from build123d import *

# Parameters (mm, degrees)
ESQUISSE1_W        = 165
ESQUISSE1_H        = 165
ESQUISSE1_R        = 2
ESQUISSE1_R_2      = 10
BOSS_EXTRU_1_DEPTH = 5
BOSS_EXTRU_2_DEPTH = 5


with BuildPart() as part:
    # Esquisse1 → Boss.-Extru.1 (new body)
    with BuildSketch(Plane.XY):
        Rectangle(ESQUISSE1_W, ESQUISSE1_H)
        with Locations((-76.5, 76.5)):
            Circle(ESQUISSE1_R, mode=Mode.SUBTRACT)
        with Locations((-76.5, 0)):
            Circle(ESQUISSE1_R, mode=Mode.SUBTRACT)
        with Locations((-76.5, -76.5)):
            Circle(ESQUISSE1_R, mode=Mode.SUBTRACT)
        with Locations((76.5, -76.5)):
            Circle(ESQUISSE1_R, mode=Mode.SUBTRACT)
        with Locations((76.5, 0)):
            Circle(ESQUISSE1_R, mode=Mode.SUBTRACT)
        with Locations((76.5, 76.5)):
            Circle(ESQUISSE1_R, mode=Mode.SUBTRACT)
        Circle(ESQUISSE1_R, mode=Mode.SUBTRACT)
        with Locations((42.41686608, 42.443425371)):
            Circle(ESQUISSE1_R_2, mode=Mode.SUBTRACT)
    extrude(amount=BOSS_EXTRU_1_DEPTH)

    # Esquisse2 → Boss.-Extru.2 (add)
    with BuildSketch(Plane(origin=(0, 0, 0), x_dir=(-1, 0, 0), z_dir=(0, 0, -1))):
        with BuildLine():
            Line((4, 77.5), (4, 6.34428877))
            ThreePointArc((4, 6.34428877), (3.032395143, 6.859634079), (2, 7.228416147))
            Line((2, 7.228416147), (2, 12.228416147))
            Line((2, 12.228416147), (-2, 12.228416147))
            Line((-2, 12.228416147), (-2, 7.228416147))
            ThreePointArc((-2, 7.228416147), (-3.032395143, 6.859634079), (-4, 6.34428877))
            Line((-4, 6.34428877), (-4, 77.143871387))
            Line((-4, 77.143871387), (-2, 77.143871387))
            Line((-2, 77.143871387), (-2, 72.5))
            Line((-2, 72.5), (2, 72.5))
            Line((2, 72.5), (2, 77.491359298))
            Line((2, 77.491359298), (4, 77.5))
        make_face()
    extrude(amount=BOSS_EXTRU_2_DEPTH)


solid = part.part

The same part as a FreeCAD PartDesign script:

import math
import FreeCAD as App
import Part
import Sketcher

V = App.Vector
Q = App.Units.Quantity


def add_polygon(sketch, points):
    """Adds a closed chain of lines whose ends are joined by coincident constraints."""
    first, n = sketch.GeometryCount, len(points)
    for a, b in zip(points, points[1:] + points[:1]):
        sketch.addGeometry(Part.LineSegment(App.Vector(*a, 0), App.Vector(*b, 0)), False)
    for i in range(n):
        sketch.addConstraint(Sketcher.Constraint("Coincident", first + i, 2, first + (i + 1) % n, 1))

doc = App.newDocument("Part")
params = doc.addObject("Spreadsheet::Sheet", "Params")
for row, (alias, value) in enumerate([
    ("sketch1_diameter", "4 mm"),
    ("sketch1_diameter2", "20 mm"),
    ("sketch1_width", "165 mm"),
    ("pad1_length", "5 mm"),
    ("sketch2_radius", "7.5 mm"),
    ("sketch2_width", "4 mm"),
    ("sketch2_width2", "2 mm"),
    ("sketch2_height", "5 mm"),
    ("pad2_length", "5 mm"),
], start=1):
    params.set(f"A{row}", alias)
    params.set(f"B{row}", "=" + value)
    params.setAlias(f"B{row}", alias)

body = doc.addObject("PartDesign::Body", "Body")

# Sketch on XY plane
sketch1 = body.newObject("Sketcher::SketchObject", "Sketch")
sketch1.AttachmentSupport = (doc.getObject("XY_Plane"), [""])
sketch1.MapMode = "FlatFace"
add_polygon(sketch1, [(-82.5, 82.5), (-82.5, -82.5), (82.5, -82.5), (82.5, 82.5)])  # lines 0-3
sketch1.addGeometry(Part.Circle(V(-76.5, -76.5, 0), V(0, 0, 1), 2), False)  # 4
sketch1.addGeometry(Part.Circle(V(76.5, -76.5, 0), V(0, 0, 1), 2), False)  # 5
sketch1.addGeometry(Part.Circle(V(-76.5, 0, 0), V(0, 0, 1), 2), False)  # 6
sketch1.addGeometry(Part.Circle(V(-76.5, 76.5, 0), V(0, 0, 1), 2), False)  # 7
sketch1.addGeometry(Part.Circle(V(0, 0, 0), V(0, 0, 1), 2), False)  # 8
sketch1.addGeometry(Part.Circle(V(76.5, 0, 0), V(0, 0, 1), 2), False)  # 9
sketch1.addGeometry(Part.Circle(V(42.4, 42.4, 0), V(0, 0, 1), 10), False)  # 10
sketch1.addGeometry(Part.Circle(V(76.5, 76.5, 0), V(0, 0, 1), 2), False)  # 11
sketch1.addConstraint([
    Sketcher.Constraint("Vertical", 0),
    Sketcher.Constraint("Horizontal", 1),
    Sketcher.Constraint("Vertical", 2),
    Sketcher.Constraint("Horizontal", 3),
    Sketcher.Constraint("Coincident", 8, 3, -1, 1),
    Sketcher.Constraint("Equal", 4, 5),
    Sketcher.Constraint("Equal", 5, 6),
    Sketcher.Constraint("Equal", 6, 7),
    Sketcher.Constraint("Equal", 7, 8),
    Sketcher.Constraint("Equal", 8, 9),
    Sketcher.Constraint("Equal", 9, 11),
    Sketcher.Constraint("Symmetric", 5, 3, 7, 3, -1, 1),
    Sketcher.Constraint("Symmetric", 6, 3, 9, 3, -1, 1),
    Sketcher.Constraint("Symmetric", 4, 3, 11, 3, -1, 1),
    Sketcher.Constraint("Symmetric", 0, 2, 2, 2, -1, 1),
    Sketcher.Constraint("Symmetric", 4, 3, 5, 3, -2),
    Sketcher.Constraint("PointOnObject", 6, 3, -1),
    Sketcher.Constraint("Vertical", 4, 3, 6, 3),
    Sketcher.Constraint("Equal", 3, 0),
    Sketcher.Constraint("Diameter", 4, Q("4 mm")),
    Sketcher.Constraint("Diameter", 10, Q("20 mm")),
    Sketcher.Constraint("DistanceX", 1, 1, 1, 2, Q("165 mm")),
    Sketcher.Constraint("DistanceX", 4, 3, 5, 3, Q("153 mm")),
    Sketcher.Constraint("DistanceY", 4, 3, 7, 3, Q("153 mm")),
    Sketcher.Constraint("DistanceX", -1, 1, 10, 3, Q("42.416866 mm")),
    Sketcher.Constraint("DistanceY", -1, 1, 10, 3, Q("42.443425 mm")),
])
sketch1.setExpression("Constraints[23]", "Params.sketch1_diameter")
sketch1.setExpression("Constraints[24]", "Params.sketch1_diameter2")
sketch1.setExpression("Constraints[25]", "Params.sketch1_width")
pad1 = body.newObject("PartDesign::Pad", "Pad")
pad1.Profile = sketch1
pad1.setExpression("Length", "Params.pad1_length")

# Sketch on XY plane
sketch2 = body.newObject("Sketcher::SketchObject", "Sketch001")
sketch2.AttachmentSupport = (doc.getObject("XY_Plane"), [""])
sketch2.MapMode = "FlatFace"
sketch2.addGeometry([
    Part.LineSegment(V(-4, 6.3, 0), V(-4, 77.5, 0)),  # 0
    Part.LineSegment(V(-4, 77.5, 0), V(-2, 77.5, 0)),  # 1
    Part.LineSegment(V(-2, 77.5, 0), V(-2, 72.5, 0)),  # 2
    Part.LineSegment(V(-2, 72.5, 0), V(2, 72.5, 0)),  # 3
    Part.LineSegment(V(2, 72.5, 0), V(2, 77.1, 0)),  # 4
    Part.LineSegment(V(2, 77.1, 0), V(4, 77.1, 0)),  # 5
    Part.LineSegment(V(4, 77.1, 0), V(4, 6.3, 0)),  # 6
    Part.ArcOfCircle(Part.Circle(V(0, 0, 0), V(0, 0, 1), 7.5), math.radians(57.77), math.radians(74.53)),  # 7
    Part.LineSegment(V(2, 7.2, 0), V(2, 12.2, 0)),  # 8
    Part.LineSegment(V(2, 12.2, 0), V(-2, 12.2, 0)),  # 9
    Part.LineSegment(V(-2, 12.2, 0), V(-2, 7.2, 0)),  # 10
    Part.ArcOfCircle(Part.Circle(V(0, 0, 0), V(0, 0, 1), 7.5), math.radians(105.47), math.radians(122.23)),  # 11
], False)
sketch2.addConstraint([
    Sketcher.Constraint("Coincident", 0, 2, 1, 1),
    Sketcher.Constraint("Coincident", 1, 2, 2, 1),
    Sketcher.Constraint("Coincident", 2, 2, 3, 1),
    Sketcher.Constraint("Coincident", 3, 2, 4, 1),
    Sketcher.Constraint("Coincident", 4, 2, 5, 1),
    Sketcher.Constraint("Coincident", 5, 2, 6, 1),
    Sketcher.Constraint("Coincident", 6, 2, 7, 1),
    Sketcher.Constraint("Coincident", 7, 2, 8, 1),
    Sketcher.Constraint("Coincident", 8, 2, 9, 1),
    Sketcher.Constraint("Coincident", 9, 2, 10, 1),
    Sketcher.Constraint("Coincident", 10, 2, 11, 1),
    Sketcher.Constraint("Coincident", 11, 2, 0, 1),
    Sketcher.Constraint("Vertical", 0),
    Sketcher.Constraint("Vertical", 2),
    Sketcher.Constraint("Horizontal", 3),
    Sketcher.Constraint("Vertical", 4),
    Sketcher.Constraint("Horizontal", 5),
    Sketcher.Constraint("Vertical", 6),
    Sketcher.Constraint("Vertical", 8),
    Sketcher.Constraint("Horizontal", 9),
    Sketcher.Constraint("Vertical", 10),
    Sketcher.Constraint("Coincident", 7, 3, -1, 1),
    Sketcher.Constraint("Coincident", 11, 3, -1, 1),
    Sketcher.Constraint("Equal", 7, 11),
    Sketcher.Constraint("Horizontal", 7, 2, 10, 2),
    Sketcher.Constraint("Horizontal", 6, 2, 11, 2),
    Sketcher.Constraint("Vertical", 4, 2, 7, 2),
    Sketcher.Constraint("Vertical", 2, 2, 9, 2),
    Sketcher.Constraint("Radius", 7, Q("7.5 mm")),
    Sketcher.Constraint("DistanceX", 3, 1, 3, 2, Q("4 mm")),
    Sketcher.Constraint("DistanceX", 5, 1, 5, 2, Q("2 mm")),
    Sketcher.Constraint("DistanceY", 8, 1, 8, 2, Q("5 mm")),
    Sketcher.Constraint("DistanceY", 2, 2, 0, 2, Q("5 mm")),
    Sketcher.Constraint("DistanceY", -1, 1, 0, 2, Q("77.5 mm")),
    Sketcher.Constraint("DistanceY", 2, 2, 2, 1, Q("4.991359 mm")),
    Sketcher.Constraint("DistanceY", 4, 1, 4, 2, Q("4.643871 mm")),
])
sketch2.setExpression("Constraints[28]", "Params.sketch2_radius")
sketch2.setExpression("Constraints[29]", "Params.sketch2_width")
sketch2.setExpression("Constraints[30]", "Params.sketch2_width2")
sketch2.setExpression("Constraints[31]", "Params.sketch2_height")
pad2 = body.newObject("PartDesign::Pad", "Pad001")
pad2.Profile = sketch2
pad2.setExpression("Length", "Params.pad2_length")
pad2.Reversed = True

doc.recompute()
